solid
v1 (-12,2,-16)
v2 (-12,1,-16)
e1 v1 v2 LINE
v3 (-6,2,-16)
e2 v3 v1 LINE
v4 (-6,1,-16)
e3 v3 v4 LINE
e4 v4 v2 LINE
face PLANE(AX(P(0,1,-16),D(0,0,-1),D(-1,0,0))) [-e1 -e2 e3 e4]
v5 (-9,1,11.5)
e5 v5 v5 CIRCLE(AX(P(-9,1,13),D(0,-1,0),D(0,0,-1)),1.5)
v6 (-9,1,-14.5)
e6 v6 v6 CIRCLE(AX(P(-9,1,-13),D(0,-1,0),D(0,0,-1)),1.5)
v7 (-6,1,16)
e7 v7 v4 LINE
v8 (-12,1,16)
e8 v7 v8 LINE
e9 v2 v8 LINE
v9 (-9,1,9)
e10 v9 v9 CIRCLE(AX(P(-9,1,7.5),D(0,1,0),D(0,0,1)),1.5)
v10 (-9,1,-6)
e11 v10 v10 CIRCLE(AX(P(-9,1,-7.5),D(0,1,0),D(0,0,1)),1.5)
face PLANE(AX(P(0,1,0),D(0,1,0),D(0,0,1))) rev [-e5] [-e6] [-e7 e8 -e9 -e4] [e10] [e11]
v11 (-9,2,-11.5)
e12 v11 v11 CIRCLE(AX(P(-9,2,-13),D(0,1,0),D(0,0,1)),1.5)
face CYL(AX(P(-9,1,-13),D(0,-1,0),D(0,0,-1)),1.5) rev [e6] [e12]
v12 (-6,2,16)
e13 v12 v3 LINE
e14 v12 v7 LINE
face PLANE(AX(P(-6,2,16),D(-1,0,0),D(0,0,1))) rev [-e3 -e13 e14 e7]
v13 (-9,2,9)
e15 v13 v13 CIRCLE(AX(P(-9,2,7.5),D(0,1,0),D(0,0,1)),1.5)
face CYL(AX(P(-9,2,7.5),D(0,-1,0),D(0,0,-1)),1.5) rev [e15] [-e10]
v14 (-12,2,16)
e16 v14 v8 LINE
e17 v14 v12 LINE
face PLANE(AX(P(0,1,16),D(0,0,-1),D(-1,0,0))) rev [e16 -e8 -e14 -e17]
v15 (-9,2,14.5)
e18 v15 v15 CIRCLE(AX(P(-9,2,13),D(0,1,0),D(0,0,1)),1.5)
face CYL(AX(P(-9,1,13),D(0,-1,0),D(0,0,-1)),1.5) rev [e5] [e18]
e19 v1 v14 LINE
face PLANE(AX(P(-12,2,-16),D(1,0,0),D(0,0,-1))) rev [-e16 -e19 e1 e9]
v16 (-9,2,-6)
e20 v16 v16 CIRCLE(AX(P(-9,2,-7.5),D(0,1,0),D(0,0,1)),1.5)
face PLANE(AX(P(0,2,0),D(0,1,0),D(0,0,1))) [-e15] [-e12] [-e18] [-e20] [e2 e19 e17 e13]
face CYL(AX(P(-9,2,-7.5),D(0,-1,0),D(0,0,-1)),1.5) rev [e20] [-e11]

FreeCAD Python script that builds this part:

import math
import FreeCAD as App
import Part
import Sketcher
from FreeCAD import Vector
Q = App.Units.Quantity

doc = App.newDocument("Part")
body = doc.addObject("PartDesign::Body", "Body")

# Sketch on XZ plane
sketch1 = doc.addObject("Sketcher::SketchObject", "Sketch")
body.addObject(sketch1)
sketch1.AttachmentSupport = (doc.XZ_Plane, [""])
sketch1.MapMode = "FlatFace"
sketch1.addGeometry(Part.Circle(Vector(0, 0, 0), Vector(0, 0, 1), 35), False)
sketch1.addGeometry(Part.Circle(Vector(-21.566757, -21.566757, 0), Vector(0, 0, 1), 1.5), False)
sketch1.addGeometry(Part.Circle(Vector(-18, -13, 0), Vector(0, 0, 1), 1.5), False)
sketch1.addGeometry(Part.Circle(Vector(0, -30.5, 0), Vector(0, 0, 1), 1.5), False)
sketch1.addGeometry(Part.LineSegment(Vector(20.493902, -16, 0), Vector(-20.493902, -16, 0)), False)
sketch1.addGeometry(Part.ArcOfCircle(Part.Circle(Vector(0, 0, 0), Vector(0, 0, 1), 26), math.radians(-142.020128), math.radians(-37.979872)), False)
sketch1.addGeometry(Part.Circle(Vector(-9, -13, 0), Vector(0, 0, 1), 1.5), False)
sketch1.addGeometry(Part.Circle(Vector(0, -13, 0), Vector(0, 0, 1), 1.5), False)
sketch1.addGeometry(Part.Circle(Vector(-30.5, 0, 0), Vector(0, 0, 1), 1.5), False)
sketch1.addGeometry(Part.Circle(Vector(-18, 13, 0), Vector(0, 0, 1), 1.5), False)
sketch1.addGeometry(Part.Circle(Vector(-21.566757, 21.566757, 0), Vector(0, 0, 1), 1.5), False)
sketch1.addGeometry(Part.Circle(Vector(-9, 13, 0), Vector(0, 0, 1), 1.5), False)
sketch1.addGeometry(Part.LineSegment(Vector(24, 10, 0), Vector(-24, 10, 0)), False)
sketch1.addGeometry(Part.ArcOfCircle(Part.Circle(Vector(0, 0, 0), Vector(0, 0, 1), 26), math.radians(157.380135), math.radians(202.619865)), False)
sketch1.addGeometry(Part.LineSegment(Vector(-24, -10, 0), Vector(24, -10, 0)), False)
sketch1.addGeometry(Part.ArcOfCircle(Part.Circle(Vector(0, 0, 0), Vector(0, 0, 1), 26), math.radians(-22.619865), math.radians(22.619865)), False)
sketch1.addGeometry(Part.Circle(Vector(9, -13, 0), Vector(0, 0, 1), 1.5), False)
sketch1.addGeometry(Part.Circle(Vector(21.566757, -21.566757, 0), Vector(0, 0, 1), 1.5), False)
sketch1.addGeometry(Part.Circle(Vector(18, -13, 0), Vector(0, 0, 1), 1.5), False)
sketch1.addGeometry(Part.Circle(Vector(30.5, 0, 0), Vector(0, 0, 1), 1.5), False)
sketch1.addGeometry(Part.Circle(Vector(0, 13, 0), Vector(0, 0, 1), 1.5), False)
sketch1.addGeometry(Part.Circle(Vector(9, 13, 0), Vector(0, 0, 1), 1.5), False)
sketch1.addGeometry(Part.ArcOfCircle(Part.Circle(Vector(0, 0, 0), Vector(0, 0, 1), 26), math.radians(37.979872), math.radians(142.020128)), False)
sketch1.addGeometry(Part.LineSegment(Vector(-20.493902, 16, 0), Vector(20.493902, 16, 0)), False)
sketch1.addGeometry(Part.Circle(Vector(0, 30.5, 0), Vector(0, 0, 1), 1.5), False)
sketch1.addGeometry(Part.Circle(Vector(18, 13, 0), Vector(0, 0, 1), 1.5), False)
sketch1.addGeometry(Part.Circle(Vector(21.566757, 21.566757, 0), Vector(0, 0, 1), 1.5), False)
sketch1.addConstraint(Sketcher.Constraint("Coincident", 4, 1, 5, 2))
sketch1.addConstraint(Sketcher.Constraint("Coincident", 5, 1, 4, 2))
sketch1.addConstraint(Sketcher.Constraint("Coincident", 12, 2, 13, 1))
sketch1.addConstraint(Sketcher.Constraint("Coincident", 13, 2, 14, 1))
sketch1.addConstraint(Sketcher.Constraint("Coincident", 14, 2, 15, 1))
sketch1.addConstraint(Sketcher.Constraint("Coincident", 15, 2, 12, 1))
sketch1.addConstraint(Sketcher.Constraint("Coincident", 22, 1, 23, 2))
sketch1.addConstraint(Sketcher.Constraint("Coincident", 23, 1, 22, 2))
sketch1.addConstraint(Sketcher.Constraint("Horizontal", 4))
sketch1.addConstraint(Sketcher.Constraint("Horizontal", 12))
sketch1.addConstraint(Sketcher.Constraint("Horizontal", 14))
sketch1.addConstraint(Sketcher.Constraint("Horizontal", 23))
sketch1.addConstraint(Sketcher.Constraint("Coincident", 0, 3, -1, 1))
sketch1.addConstraint(Sketcher.Constraint("Coincident", 5, 3, -1, 1))
sketch1.addConstraint(Sketcher.Constraint("Coincident", 13, 3, -1, 1))
sketch1.addConstraint(Sketcher.Constraint("Coincident", 15, 3, -1, 1))
sketch1.addConstraint(Sketcher.Constraint("Coincident", 22, 3, -1, 1))
sketch1.addConstraint(Sketcher.Constraint("Equal", 1, 2))
sketch1.addConstraint(Sketcher.Constraint("Equal", 2, 3))
sketch1.addConstraint(Sketcher.Constraint("Equal", 3, 6))
sketch1.addConstraint(Sketcher.Constraint("Equal", 6, 7))
sketch1.addConstraint(Sketcher.Constraint("Equal", 7, 8))
sketch1.addConstraint(Sketcher.Constraint("Equal", 8, 9))
sketch1.addConstraint(Sketcher.Constraint("Equal", 9, 10))
sketch1.addConstraint(Sketcher.Constraint("Equal", 10, 11))
sketch1.addConstraint(Sketcher.Constraint("Equal", 5, 13))
sketch1.addConstraint(Sketcher.Constraint("Equal", 13, 15))
sketch1.addConstraint(Sketcher.Constraint("Equal", 11, 16))
sketch1.addConstraint(Sketcher.Constraint("Equal", 16, 17))
sketch1.addConstraint(Sketcher.Constraint("Equal", 17, 18))
sketch1.addConstraint(Sketcher.Constraint("Equal", 18, 19))
sketch1.addConstraint(Sketcher.Constraint("Equal", 19, 20))
sketch1.addConstraint(Sketcher.Constraint("Equal", 20, 21))
sketch1.addConstraint(Sketcher.Constraint("Equal", 15, 22))
sketch1.addConstraint(Sketcher.Constraint("Equal", 21, 24))
sketch1.addConstraint(Sketcher.Constraint("Equal", 24, 25))
sketch1.addConstraint(Sketcher.Constraint("Equal", 25, 26))
sketch1.addConstraint(Sketcher.Constraint("Symmetric", 11, 3, 16, 3, -1, 1))
sketch1.addConstraint(Sketcher.Constraint("Symmetric", 10, 3, 17, 3, -1, 1))
sketch1.addConstraint(Sketcher.Constraint("Symmetric", 9, 3, 18, 3, -1, 1))
sketch1.addConstraint(Sketcher.Constraint("Symmetric", 8, 3, 19, 3, -1, 1))
sketch1.addConstraint(Sketcher.Constraint("Symmetric", 7, 3, 20, 3, -1, 1))
sketch1.addConstraint(Sketcher.Constraint("Symmetric", 6, 3, 21, 3, -1, 1))
sketch1.addConstraint(Sketcher.Constraint("Symmetric", 3, 3, 24, 3, -1, 1))
sketch1.addConstraint(Sketcher.Constraint("Symmetric", 2, 3, 25, 3, -1, 1))
sketch1.addConstraint(Sketcher.Constraint("Symmetric", 1, 3, 26, 3, -1, 1))
sketch1.addConstraint(Sketcher.Constraint("Symmetric", 6, 3, 16, 3, -2))
sketch1.addConstraint(Sketcher.Constraint("Symmetric", 1, 3, 17, 3, -2))
sketch1.addConstraint(Sketcher.Constraint("Symmetric", 2, 3, 18, 3, -2))
sketch1.addConstraint(Sketcher.Constraint("PointOnObject", 3, 3, -2))
sketch1.addConstraint(Sketcher.Constraint("PointOnObject", 7, 3, -2))
sketch1.addConstraint(Sketcher.Constraint("PointOnObject", 8, 3, -1))
sketch1.addConstraint(Sketcher.Constraint("Horizontal", 2, 3, 6, 3))
sketch1.addConstraint(Sketcher.Constraint("Horizontal", 6, 3, 7, 3))
sketch1.addConstraint(Sketcher.Constraint("Vertical", 12, 2, 13, 2))
sketch1.addConstraint(Sketcher.Constraint("Vertical", 4, 1, 22, 1))
sketch1.addConstraint(Sketcher.Constraint("Diameter", 0, Q("70 mm")))
sketch1.addConstraint(Sketcher.Constraint("Diameter", 1, Q("3 mm")))
sketch1.addConstraint(Sketcher.Constraint("Radius", 5, Q("26 mm")))
sketch1.addConstraint(Sketcher.Constraint("DistanceX", 12, 2, 12, 1, Q("48 mm")))
sketch1.addConstraint(Sketcher.Constraint("DistanceX", 2, 3, -1, 1, Q("18 mm")))
sketch1.addConstraint(Sketcher.Constraint("DistanceY", 2, 3, -1, 1, Q("13 mm")))
sketch1.addConstraint(Sketcher.Constraint("DistanceX", 6, 3, -1, 1, Q("9 mm")))
sketch1.addConstraint(Sketcher.Constraint("DistanceY", 4, 1, -1, 1, Q("16 mm")))
sketch1.addConstraint(Sketcher.Constraint("DistanceY", 3, 3, -1, 1, Q("30.5 mm")))
sketch1.addConstraint(Sketcher.Constraint("DistanceX", 8, 3, -1, 1, Q("30.5 mm")))
sketch1.addConstraint(Sketcher.Constraint("DistanceX", 1, 3, -1, 1, Q("21.566757 mm")))
sketch1.addConstraint(Sketcher.Constraint("DistanceY", 1, 3, -1, 1, Q("21.566757 mm")))
pad1 = doc.addObject("PartDesign::Pad", "Pad")
body.addObject(pad1)
pad1.Profile = sketch1
pad1.Length = 1
pad1.Reversed = True

# Sketch on XZ plane
sketch2 = doc.addObject("Sketcher::SketchObject", "Sketch001")
body.addObject(sketch2)
sketch2.AttachmentSupport = (doc.XZ_Plane, [""])
sketch2.MapMode = "FlatFace"
sketch2.AttachmentOffset = App.Placement(Vector(0, 0, -1), App.Rotation())
sketch2.addGeometry(Part.LineSegment(Vector(-12, -16, 0), Vector(-12, 16, 0)), False)
sketch2.addGeometry(Part.LineSegment(Vector(-12, 16, 0), Vector(-6, 16, 0)), False)
sketch2.addGeometry(Part.LineSegment(Vector(-6, 16, 0), Vector(-6, -16, 0)), False)
sketch2.addGeometry(Part.LineSegment(Vector(-6, -16, 0), Vector(-12, -16, 0)), False)
sketch2.addGeometry(Part.Circle(Vector(-9, 13, 0), Vector(0, 0, 1), 1.5), False)
sketch2.addGeometry(Part.Circle(Vector(-9, 7.5, 0), Vector(0, 0, 1), 1.5), False)
sketch2.addGeometry(Part.Circle(Vector(-9, -7.5, 0), Vector(0, 0, 1), 1.5), False)
sketch2.addGeometry(Part.Circle(Vector(-9, -13, 0), Vector(0, 0, 1), 1.5), False)
sketch2.addConstraint(Sketcher.Constraint("Coincident", 0, 2, 1, 1))
sketch2.addConstraint(Sketcher.Constraint("Coincident", 1, 2, 2, 1))
sketch2.addConstraint(Sketcher.Constraint("Coincident", 2, 2, 3, 1))
sketch2.addConstraint(Sketcher.Constraint("Coincident", 3, 2, 0, 1))
sketch2.addConstraint(Sketcher.Constraint("Vertical", 0))
sketch2.addConstraint(Sketcher.Constraint("Horizontal", 1))
sketch2.addConstraint(Sketcher.Constraint("Vertical", 2))
sketch2.addConstraint(Sketcher.Constraint("Horizontal", 3))
sketch2.addConstraint(Sketcher.Constraint("Equal", 4, 5))
sketch2.addConstraint(Sketcher.Constraint("Equal", 5, 6))
sketch2.addConstraint(Sketcher.Constraint("Equal", 6, 7))
sketch2.addConstraint(Sketcher.Constraint("Symmetric", 5, 3, 6, 3, -1))
sketch2.addConstraint(Sketcher.Constraint("Symmetric", 4, 3, 7, 3, -1))
sketch2.addConstraint(Sketcher.Constraint("Vertical", 4, 3, 5, 3))
sketch2.addConstraint(Sketcher.Constraint("Diameter", 4, Q("3 mm")))
sketch2.addConstraint(Sketcher.Constraint("DistanceX", 1, 1, 1, 2, Q("6 mm")))
sketch2.addConstraint(Sketcher.Constraint("DistanceY", 0, 1, 0, 2, Q("32 mm")))
sketch2.addConstraint(Sketcher.Constraint("DistanceX", 4, 3, -1, 1, Q("9 mm")))
sketch2.addConstraint(Sketcher.Constraint("DistanceY", -1, 1, 4, 3, Q("13 mm")))
sketch2.addConstraint(Sketcher.Constraint("DistanceX", 0, 2, -1, 1, Q("12 mm")))
sketch2.addConstraint(Sketcher.Constraint("DistanceY", -1, 1, 0, 2, Q("16 mm")))
sketch2.addConstraint(Sketcher.Constraint("DistanceY", 6, 3, 5, 3, Q("15 mm")))
pad2 = doc.addObject("PartDesign::Pad", "Pad001")
body.addObject(pad2)
pad2.Profile = sketch2
pad2.Length = 1
pad2.Reversed = True

# Sketch on XZ plane
sketch3 = doc.addObject("Sketcher::SketchObject", "Sketch002")
body.addObject(sketch3)
sketch3.AttachmentSupport = (doc.XZ_Plane, [""])
sketch3.MapMode = "FlatFace"
sketch3.addGeometry(Part.Circle(Vector(0, 0, 0), Vector(0, 0, 1), 35), False)
sketch3.addConstraint(Sketcher.Constraint("Coincident", 0, 3, -1, 1))
sketch3.addConstraint(Sketcher.Constraint("Diameter", 0, Q("70 mm")))
pocket1 = doc.addObject("PartDesign::Pocket", "Pocket")
body.addObject(pocket1)
pocket1.Profile = sketch3
pocket1.Length = 1

doc.recompute()
